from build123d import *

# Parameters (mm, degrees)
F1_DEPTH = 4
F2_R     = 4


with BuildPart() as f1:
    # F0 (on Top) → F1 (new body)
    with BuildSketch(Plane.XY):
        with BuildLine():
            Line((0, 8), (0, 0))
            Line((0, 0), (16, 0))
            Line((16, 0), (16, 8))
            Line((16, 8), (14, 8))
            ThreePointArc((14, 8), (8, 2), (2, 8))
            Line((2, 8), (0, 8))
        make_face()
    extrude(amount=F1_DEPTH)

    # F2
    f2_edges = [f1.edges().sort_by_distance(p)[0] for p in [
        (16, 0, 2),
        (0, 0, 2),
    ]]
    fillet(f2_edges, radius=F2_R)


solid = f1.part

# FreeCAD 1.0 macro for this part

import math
import FreeCAD as App
import Part
import Sketcher
from FreeCAD import Vector


def edges_at(feature, points):
    """Names of the edges that pass closest to the given points."""
    edges = feature.Shape.Edges
    near = lambda p: min(range(len(edges)), key=lambda i: edges[i].distToShape(Part.Vertex(*p))[0])
    return sorted({f"Edge{near(p) + 1}" for p in points})

doc = App.newDocument("Part")
body = doc.addObject("PartDesign::Body", "Body")

sketch1 = body.newObject("Sketcher::SketchObject", "Sketch")
sketch1.AttachmentSupport = (doc.getObject("XY_Plane"), [""])
sketch1.MapMode = "FlatFace"
sketch1.addGeometry(Part.LineSegment(Vector(0, 8, 0), Vector(0, 0, 0)), False)
sketch1.addGeometry(Part.LineSegment(Vector(0, 0, 0), Vector(16, 0, 0)), False)
sketch1.addGeometry(Part.LineSegment(Vector(16, 0, 0), Vector(16, 8, 0)), False)
sketch1.addGeometry(Part.LineSegment(Vector(16, 8, 0), Vector(14, 8, 0)), False)
sketch1.addGeometry(Part.ArcOfCircle(Part.Circle(Vector(8, 8, 0), Vector(0, 0, 1), 6), math.radians(180), math.radians(360)), False)
sketch1.addGeometry(Part.LineSegment(Vector(2, 8, 0), Vector(0, 8, 0)), False)
sketch1.addConstraint(Sketcher.Constraint("Coincident", 0, 2, 1, 1))
sketch1.addConstraint(Sketcher.Constraint("Coincident", 1, 2, 2, 1))
sketch1.addConstraint(Sketcher.Constraint("Coincident", 2, 2, 3, 1))
sketch1.addConstraint(Sketcher.Constraint("Coincident", 3, 2, 4, 2))
sketch1.addConstraint(Sketcher.Constraint("Coincident", 4, 1, 5, 1))
sketch1.addConstraint(Sketcher.Constraint("Coincident", 5, 2, 0, 1))
sketch1.addConstraint(Sketcher.Constraint("Vertical", 0))
sketch1.addConstraint(Sketcher.Constraint("Horizontal", 1))
sketch1.addConstraint(Sketcher.Constraint("Vertical", 2))
sketch1.addConstraint(Sketcher.Constraint("Horizontal", 3))
sketch1.addConstraint(Sketcher.Constraint("Horizontal", 5))
sketch1.addConstraint(Sketcher.Constraint("Coincident", 0, 2, -1, 1))
sketch1.addConstraint(Sketcher.Constraint("Horizontal", 4, 3, 2, 2))
sketch1.addConstraint(Sketcher.Constraint("Horizontal", 3, 2, 4, 1))
sketch1.addConstraint(Sketcher.Constraint("Equal", 3, 5))
sketch1.addConstraint(Sketcher.Constraint("Radius", 4, 6.0))
sketch1.addConstraint(Sketcher.Constraint("DistanceX", 1, 1, 1, 2, 16.0))
sketch1.addConstraint(Sketcher.Constraint("DistanceY", 0, 2, 0, 1, 8.0))
pad1 = body.newObject("PartDesign::Pad", "Pad")
pad1.Profile = sketch1
pad1.Length = 4
doc.recompute()

fillet = body.newObject("PartDesign::Fillet", "Fillet")
fillet.Base = (pad1, edges_at(pad1, [(16, 0, 2), (0, 0, 2)]))
fillet.Radius = 4

doc.recompute()
